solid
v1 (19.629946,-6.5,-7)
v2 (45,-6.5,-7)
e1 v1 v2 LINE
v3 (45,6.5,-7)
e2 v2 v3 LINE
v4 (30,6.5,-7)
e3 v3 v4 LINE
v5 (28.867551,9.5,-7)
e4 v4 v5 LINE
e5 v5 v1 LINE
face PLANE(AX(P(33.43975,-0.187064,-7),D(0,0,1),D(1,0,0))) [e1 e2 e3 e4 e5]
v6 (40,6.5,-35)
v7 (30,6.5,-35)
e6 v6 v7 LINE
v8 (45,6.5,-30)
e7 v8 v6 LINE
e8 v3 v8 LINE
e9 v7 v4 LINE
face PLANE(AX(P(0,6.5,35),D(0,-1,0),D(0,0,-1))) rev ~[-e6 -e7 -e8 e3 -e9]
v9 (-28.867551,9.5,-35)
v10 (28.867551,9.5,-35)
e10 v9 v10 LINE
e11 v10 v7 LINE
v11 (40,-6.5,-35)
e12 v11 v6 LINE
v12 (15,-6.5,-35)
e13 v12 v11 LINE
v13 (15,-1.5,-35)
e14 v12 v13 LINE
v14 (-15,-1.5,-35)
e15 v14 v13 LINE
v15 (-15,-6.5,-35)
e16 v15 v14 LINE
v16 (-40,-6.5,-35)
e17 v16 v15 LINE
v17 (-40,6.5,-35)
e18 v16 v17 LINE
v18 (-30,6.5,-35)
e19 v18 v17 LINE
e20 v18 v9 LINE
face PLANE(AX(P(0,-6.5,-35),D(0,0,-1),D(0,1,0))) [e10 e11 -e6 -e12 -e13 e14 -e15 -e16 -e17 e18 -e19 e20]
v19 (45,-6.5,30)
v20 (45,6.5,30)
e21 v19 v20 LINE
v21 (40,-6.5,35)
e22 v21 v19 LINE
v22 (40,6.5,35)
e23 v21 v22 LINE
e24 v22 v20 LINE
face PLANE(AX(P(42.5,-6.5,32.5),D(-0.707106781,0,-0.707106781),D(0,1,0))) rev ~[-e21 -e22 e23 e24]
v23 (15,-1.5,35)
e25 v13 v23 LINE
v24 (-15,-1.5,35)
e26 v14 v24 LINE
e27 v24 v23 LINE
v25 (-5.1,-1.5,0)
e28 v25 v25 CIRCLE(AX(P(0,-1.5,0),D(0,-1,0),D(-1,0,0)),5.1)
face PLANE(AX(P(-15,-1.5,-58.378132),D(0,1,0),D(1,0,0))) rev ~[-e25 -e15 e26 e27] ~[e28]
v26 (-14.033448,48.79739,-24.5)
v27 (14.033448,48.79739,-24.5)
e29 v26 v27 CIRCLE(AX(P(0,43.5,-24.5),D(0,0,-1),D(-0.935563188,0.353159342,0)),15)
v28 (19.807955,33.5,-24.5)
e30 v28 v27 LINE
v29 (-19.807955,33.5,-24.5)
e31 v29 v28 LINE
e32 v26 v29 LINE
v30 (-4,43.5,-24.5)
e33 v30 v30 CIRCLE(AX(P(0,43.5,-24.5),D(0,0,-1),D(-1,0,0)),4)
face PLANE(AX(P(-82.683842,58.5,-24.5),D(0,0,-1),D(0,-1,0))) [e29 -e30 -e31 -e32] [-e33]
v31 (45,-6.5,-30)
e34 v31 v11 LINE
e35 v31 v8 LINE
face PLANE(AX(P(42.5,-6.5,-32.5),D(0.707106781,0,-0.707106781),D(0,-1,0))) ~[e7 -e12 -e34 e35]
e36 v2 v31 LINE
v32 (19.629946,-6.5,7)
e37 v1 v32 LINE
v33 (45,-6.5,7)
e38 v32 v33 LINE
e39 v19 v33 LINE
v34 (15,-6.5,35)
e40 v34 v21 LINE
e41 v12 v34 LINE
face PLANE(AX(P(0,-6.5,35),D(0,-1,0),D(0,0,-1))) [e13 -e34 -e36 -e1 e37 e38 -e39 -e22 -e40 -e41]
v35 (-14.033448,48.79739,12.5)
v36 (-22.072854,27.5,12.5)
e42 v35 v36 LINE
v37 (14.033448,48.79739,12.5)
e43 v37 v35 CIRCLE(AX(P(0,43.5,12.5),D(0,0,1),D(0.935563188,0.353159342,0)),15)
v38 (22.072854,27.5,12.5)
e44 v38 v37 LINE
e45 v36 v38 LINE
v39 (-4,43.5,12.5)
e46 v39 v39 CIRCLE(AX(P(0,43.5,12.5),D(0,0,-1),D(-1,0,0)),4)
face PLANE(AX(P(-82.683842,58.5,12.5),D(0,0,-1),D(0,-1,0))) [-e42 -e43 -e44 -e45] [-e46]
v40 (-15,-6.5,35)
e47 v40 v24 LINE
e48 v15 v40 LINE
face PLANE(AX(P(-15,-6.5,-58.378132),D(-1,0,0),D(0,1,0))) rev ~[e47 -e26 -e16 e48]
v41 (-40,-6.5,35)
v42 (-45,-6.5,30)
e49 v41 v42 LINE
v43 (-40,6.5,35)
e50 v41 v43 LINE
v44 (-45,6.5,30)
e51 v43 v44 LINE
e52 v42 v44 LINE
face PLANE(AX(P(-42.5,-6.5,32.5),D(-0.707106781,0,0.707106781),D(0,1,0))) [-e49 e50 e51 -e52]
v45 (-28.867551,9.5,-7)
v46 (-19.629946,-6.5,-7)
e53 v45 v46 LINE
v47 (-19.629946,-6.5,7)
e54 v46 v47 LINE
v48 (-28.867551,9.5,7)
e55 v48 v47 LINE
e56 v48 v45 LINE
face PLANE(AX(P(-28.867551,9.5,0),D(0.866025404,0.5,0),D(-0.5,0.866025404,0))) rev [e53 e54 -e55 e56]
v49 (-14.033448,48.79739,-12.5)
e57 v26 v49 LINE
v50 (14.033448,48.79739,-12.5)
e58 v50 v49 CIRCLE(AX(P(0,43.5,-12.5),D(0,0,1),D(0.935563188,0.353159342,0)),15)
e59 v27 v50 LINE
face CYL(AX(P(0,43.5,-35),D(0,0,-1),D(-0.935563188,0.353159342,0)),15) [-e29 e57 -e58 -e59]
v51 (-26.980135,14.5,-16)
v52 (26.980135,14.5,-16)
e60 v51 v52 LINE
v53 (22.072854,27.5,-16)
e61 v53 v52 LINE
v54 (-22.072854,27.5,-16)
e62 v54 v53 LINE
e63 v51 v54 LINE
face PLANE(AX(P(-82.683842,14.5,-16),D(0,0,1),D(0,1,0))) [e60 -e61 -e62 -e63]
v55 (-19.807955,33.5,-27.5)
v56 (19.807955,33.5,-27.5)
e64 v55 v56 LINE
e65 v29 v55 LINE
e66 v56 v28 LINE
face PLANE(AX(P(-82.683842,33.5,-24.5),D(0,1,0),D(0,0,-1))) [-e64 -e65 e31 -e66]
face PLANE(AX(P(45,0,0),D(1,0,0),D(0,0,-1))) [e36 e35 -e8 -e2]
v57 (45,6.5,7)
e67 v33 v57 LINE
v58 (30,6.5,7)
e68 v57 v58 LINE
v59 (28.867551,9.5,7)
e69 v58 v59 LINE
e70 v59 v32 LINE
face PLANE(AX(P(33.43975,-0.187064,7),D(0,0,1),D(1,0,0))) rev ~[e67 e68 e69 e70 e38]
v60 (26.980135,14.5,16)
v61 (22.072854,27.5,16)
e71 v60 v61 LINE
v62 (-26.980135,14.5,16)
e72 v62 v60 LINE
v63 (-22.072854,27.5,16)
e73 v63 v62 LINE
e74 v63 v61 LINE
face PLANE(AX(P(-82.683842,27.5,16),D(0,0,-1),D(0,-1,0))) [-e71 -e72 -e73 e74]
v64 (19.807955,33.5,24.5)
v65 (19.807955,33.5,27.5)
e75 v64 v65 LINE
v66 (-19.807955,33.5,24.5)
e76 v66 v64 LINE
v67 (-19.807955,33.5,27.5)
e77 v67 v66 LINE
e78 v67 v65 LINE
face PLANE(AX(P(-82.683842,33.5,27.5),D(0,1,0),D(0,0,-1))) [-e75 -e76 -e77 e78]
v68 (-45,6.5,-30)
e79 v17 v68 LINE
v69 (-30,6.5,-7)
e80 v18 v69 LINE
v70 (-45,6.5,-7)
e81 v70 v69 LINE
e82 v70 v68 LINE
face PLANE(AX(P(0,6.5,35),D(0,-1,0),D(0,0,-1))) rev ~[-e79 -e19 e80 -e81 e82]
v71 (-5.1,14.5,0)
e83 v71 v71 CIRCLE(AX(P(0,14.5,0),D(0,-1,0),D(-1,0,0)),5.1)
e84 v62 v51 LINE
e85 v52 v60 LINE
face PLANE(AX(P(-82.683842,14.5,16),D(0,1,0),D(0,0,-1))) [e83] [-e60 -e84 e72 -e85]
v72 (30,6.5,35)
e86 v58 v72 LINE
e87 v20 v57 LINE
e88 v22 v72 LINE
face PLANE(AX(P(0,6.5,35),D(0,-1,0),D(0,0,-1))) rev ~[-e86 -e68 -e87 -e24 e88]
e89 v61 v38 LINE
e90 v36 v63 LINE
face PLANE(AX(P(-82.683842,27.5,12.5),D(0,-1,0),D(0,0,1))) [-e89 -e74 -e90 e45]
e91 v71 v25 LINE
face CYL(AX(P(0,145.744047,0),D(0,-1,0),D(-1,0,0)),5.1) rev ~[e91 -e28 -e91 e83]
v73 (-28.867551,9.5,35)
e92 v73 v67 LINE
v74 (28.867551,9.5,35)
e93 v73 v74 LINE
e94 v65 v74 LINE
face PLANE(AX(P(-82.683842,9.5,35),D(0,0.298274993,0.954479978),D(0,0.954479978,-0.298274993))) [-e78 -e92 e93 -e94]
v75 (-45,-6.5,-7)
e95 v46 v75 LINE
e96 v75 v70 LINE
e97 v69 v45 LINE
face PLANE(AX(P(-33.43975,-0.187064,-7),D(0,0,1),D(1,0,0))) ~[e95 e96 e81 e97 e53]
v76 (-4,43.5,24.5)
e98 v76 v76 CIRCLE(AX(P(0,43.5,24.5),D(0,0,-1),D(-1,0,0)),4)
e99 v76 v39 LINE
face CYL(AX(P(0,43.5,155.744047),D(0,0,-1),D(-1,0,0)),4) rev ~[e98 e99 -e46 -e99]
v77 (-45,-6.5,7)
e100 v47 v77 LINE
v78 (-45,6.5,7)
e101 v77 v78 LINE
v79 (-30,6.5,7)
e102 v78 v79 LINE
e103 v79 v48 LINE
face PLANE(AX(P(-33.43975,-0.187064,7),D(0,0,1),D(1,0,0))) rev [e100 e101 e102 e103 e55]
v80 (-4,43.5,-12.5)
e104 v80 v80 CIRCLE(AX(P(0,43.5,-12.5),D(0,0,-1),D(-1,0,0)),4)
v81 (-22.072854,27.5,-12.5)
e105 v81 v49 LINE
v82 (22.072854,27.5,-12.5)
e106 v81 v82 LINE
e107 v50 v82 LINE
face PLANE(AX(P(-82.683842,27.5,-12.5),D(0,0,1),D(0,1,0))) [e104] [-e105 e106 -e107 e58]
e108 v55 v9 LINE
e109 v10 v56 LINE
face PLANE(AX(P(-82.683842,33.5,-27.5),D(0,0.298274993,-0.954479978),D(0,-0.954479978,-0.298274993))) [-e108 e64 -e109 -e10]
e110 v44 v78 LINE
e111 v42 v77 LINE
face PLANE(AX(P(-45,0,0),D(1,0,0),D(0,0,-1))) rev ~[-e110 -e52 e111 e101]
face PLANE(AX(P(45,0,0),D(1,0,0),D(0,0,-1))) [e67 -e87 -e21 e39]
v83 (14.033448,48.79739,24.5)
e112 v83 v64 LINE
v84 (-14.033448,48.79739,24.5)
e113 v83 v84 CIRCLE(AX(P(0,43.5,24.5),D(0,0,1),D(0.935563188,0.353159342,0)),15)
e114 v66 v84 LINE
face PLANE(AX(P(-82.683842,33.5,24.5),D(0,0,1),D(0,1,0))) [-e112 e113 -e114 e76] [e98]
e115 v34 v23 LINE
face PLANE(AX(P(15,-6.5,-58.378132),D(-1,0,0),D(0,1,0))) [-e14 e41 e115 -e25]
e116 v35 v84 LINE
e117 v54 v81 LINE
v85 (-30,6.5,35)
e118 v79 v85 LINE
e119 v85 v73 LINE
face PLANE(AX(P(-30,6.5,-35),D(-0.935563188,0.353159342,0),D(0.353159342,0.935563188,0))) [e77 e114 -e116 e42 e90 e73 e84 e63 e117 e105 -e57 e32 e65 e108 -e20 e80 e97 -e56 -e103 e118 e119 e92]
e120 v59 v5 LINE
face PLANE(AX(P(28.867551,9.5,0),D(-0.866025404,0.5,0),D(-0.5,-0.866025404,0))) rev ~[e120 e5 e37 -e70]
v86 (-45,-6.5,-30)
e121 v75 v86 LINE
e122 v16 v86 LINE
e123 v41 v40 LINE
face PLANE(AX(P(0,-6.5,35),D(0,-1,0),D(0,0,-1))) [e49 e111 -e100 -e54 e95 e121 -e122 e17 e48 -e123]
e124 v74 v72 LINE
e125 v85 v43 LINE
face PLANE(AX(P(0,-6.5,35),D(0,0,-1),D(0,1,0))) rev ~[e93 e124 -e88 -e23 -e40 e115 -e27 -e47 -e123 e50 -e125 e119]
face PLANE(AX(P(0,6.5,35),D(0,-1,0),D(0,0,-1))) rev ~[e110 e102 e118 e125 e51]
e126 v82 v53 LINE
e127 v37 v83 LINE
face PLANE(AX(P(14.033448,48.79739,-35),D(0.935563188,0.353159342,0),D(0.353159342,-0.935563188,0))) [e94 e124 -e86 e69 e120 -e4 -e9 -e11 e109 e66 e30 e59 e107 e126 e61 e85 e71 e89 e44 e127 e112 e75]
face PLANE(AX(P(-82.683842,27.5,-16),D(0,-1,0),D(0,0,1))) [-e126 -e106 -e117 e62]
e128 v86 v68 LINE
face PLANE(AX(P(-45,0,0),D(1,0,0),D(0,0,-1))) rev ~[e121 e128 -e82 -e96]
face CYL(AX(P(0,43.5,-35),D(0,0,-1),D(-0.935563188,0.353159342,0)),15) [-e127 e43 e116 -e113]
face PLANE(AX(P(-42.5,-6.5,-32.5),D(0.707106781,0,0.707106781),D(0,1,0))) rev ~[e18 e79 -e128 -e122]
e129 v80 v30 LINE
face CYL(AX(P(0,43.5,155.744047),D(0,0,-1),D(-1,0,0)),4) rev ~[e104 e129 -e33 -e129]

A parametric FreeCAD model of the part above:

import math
import FreeCAD as App
import Part
import Sketcher
Q = App.Units.Quantity


def edges_at(feature, points):
    """Names of the edges that pass closest to the given points."""
    edges = feature.Shape.Edges
    near = lambda p: min(range(len(edges)), key=lambda i: edges[i].distToShape(Part.Vertex(*p))[0])
    return sorted({f"Edge{near(p) + 1}" for p in points})

doc = App.newDocument("Part")
params = doc.addObject("Spreadsheet::Sheet", "Params")
for row, (alias, value) in enumerate([
    ("sketch1_width", "13 mm"),
    ("sketch1_height", "70 mm"),
    ("pad1_length", "90 mm"),
    ("chamfer_size", "5 mm"),
    ("sketch2_width", "30 mm"),
    ("sketch2_height", "5 mm"),
    ("sketch3_radius", "15 mm"),
    ("sketch3_width", "60 mm"),
    ("pad2_length", "35 mm"),
    ("pad2_length2", "35 mm"),
    ("sketch4_width", "25 mm"),
    ("sketch4_width2", "31 mm"),
    ("sketch4_width3", "13 mm"),
    ("sketch4_height", "3 mm"),
    ("sketch4_height2", "12 mm"),
    ("sketch5_width", "15 mm"),
    ("sketch5_height", "13 mm"),
    ("pocket3_length", "14 mm"),
    ("sketch6_diameter", "8 mm"),
    ("hole_diameter", "8 mm"),
    ("sketch7_diameter", "10.2 mm"),
    ("hole2_diameter", "10.2 mm"),
], start=1):
    params.set(f"A{row}", alias)
    params.set(f"B{row}", "=" + value)
    params.setAlias(f"B{row}", alias)

body = doc.addObject("PartDesign::Body", "Body")

# Sketch on YZ plane
sketch1 = body.newObject("Sketcher::SketchObject", "Sketch")
sketch1.AttachmentSupport = (doc.getObject("YZ_Plane"), [""])
sketch1.MapMode = "FlatFace"
sketch1.addGeometry([
    Part.LineSegment(App.Vector(6.5, 35, 0), App.Vector(-6.5, 35, 0)),
    Part.LineSegment(App.Vector(-6.5, 35, 0), App.Vector(-6.5, -35, 0)),
    Part.LineSegment(App.Vector(-6.5, -35, 0), App.Vector(6.5, -35, 0)),
    Part.LineSegment(App.Vector(6.5, -35, 0), App.Vector(6.5, 35, 0)),
], False)
sketch1.addConstraint([
    Sketcher.Constraint("Coincident", 0, 2, 1, 1),
    Sketcher.Constraint("Coincident", 1, 2, 2, 1),
    Sketcher.Constraint("Coincident", 2, 2, 3, 1),
    Sketcher.Constraint("Coincident", 3, 2, 0, 1),
    Sketcher.Constraint("Horizontal", 0),
    Sketcher.Constraint("Vertical", 1),
    Sketcher.Constraint("Horizontal", 2),
    Sketcher.Constraint("Vertical", 3),
    Sketcher.Constraint("Symmetric", 0, 2, 2, 2, -1, 1),
    Sketcher.Constraint("DistanceX", 0, 2, 0, 1, Q("13 mm")),
    Sketcher.Constraint("DistanceY", 1, 2, 1, 1, Q("70 mm")),
])
sketch1.setExpression("Constraints[9]", "Params.sketch1_width")
sketch1.setExpression("Constraints[10]", "Params.sketch1_height")
pad1 = body.newObject("PartDesign::Pad", "Pad")
pad1.Profile = sketch1
pad1.setExpression("Length", "Params.pad1_length")
pad1.Midplane = True
doc.recompute()

chamfer = body.newObject("PartDesign::Chamfer", "Chamfer")
chamfer.Base = (pad1, edges_at(pad1, [
    (45, 0, -35),
    (45, 0, 35),
    (-45, 0, -35),
    (-45, 0, 35),
]))
chamfer.setExpression("Size", "Params.chamfer_size")

# Sketch on XY plane
sketch2 = body.newObject("Sketcher::SketchObject", "Sketch001")
sketch2.AttachmentSupport = (doc.getObject("XY_Plane"), [""])
sketch2.MapMode = "FlatFace"
sketch2.addGeometry([
    Part.LineSegment(App.Vector(-15, -1.5, 0), App.Vector(-15, -6.5, 0)),
    Part.LineSegment(App.Vector(-15, -6.5, 0), App.Vector(15, -6.5, 0)),
    Part.LineSegment(App.Vector(15, -6.5, 0), App.Vector(15, -1.5, 0)),
    Part.LineSegment(App.Vector(15, -1.5, 0), App.Vector(-15, -1.5, 0)),
], False)
sketch2.addConstraint([
    Sketcher.Constraint("Coincident", 0, 2, 1, 1),
    Sketcher.Constraint("Coincident", 1, 2, 2, 1),
    Sketcher.Constraint("Coincident", 2, 2, 3, 1),
    Sketcher.Constraint("Coincident", 3, 2, 0, 1),
    Sketcher.Constraint("Vertical", 0),
    Sketcher.Constraint("Horizontal", 1),
    Sketcher.Constraint("Vertical", 2),
    Sketcher.Constraint("Horizontal", 3),
    Sketcher.Constraint("DistanceX", 1, 1, 1, 2, Q("30 mm")),
    Sketcher.Constraint("DistanceY", 0, 2, 0, 1, Q("5 mm")),
    Sketcher.Constraint("DistanceX", 0, 2, -1, 1, Q("15 mm")),
    Sketcher.Constraint("DistanceY", 0, 2, -1, 1, Q("6.5 mm")),
])
sketch2.setExpression("Constraints[8]", "Params.sketch2_width")
sketch2.setExpression("Constraints[9]", "Params.sketch2_height")
pocket1 = body.newObject("PartDesign::Pocket", "Pocket")
pocket1.Profile = sketch2
pocket1.Type = "ThroughAll"
pocket1.Midplane = True

# Sketch on XY plane
sketch3 = body.newObject("Sketcher::SketchObject", "Sketch002")
sketch3.AttachmentSupport = (doc.getObject("XY_Plane"), [""])
sketch3.MapMode = "FlatFace"
sketch3.addGeometry([
    Part.LineSegment(App.Vector(-14.033448, 48.79739, 0), App.Vector(-30, 6.5, 0)),
    Part.LineSegment(App.Vector(-30, 6.5, 0), App.Vector(30, 6.5, 0)),
    Part.LineSegment(App.Vector(30, 6.5, 0), App.Vector(14.033448, 48.79739, 0)),
    Part.ArcOfCircle(Part.Circle(App.Vector(0, 43.5, 0), App.Vector(0, 0, 1), 15), math.radians(20.680677), math.radians(159.319323)),
], False)
sketch3.addConstraint([
    Sketcher.Constraint("Coincident", 0, 2, 1, 1),
    Sketcher.Constraint("Coincident", 1, 2, 2, 1),
    Sketcher.Constraint("Tangent", 2, 2, 3, 1),
    Sketcher.Constraint("Tangent", 3, 2, 0, 1),
    Sketcher.Constraint("Horizontal", 1),
    Sketcher.Constraint("Symmetric", 2, 2, 3, 2, -2),
    Sketcher.Constraint("Radius", 3, Q("15 mm")),
    Sketcher.Constraint("DistanceX", 1, 1, 1, 2, Q("60 mm")),
    Sketcher.Constraint("DistanceY", 0, 2, 3, 3, Q("37 mm")),
    Sketcher.Constraint("DistanceY", -1, 1, 3, 3, Q("43.5 mm")),
])
sketch3.setExpression("Constraints[6]", "Params.sketch3_radius")
sketch3.setExpression("Constraints[7]", "Params.sketch3_width")
pad2 = body.newObject("PartDesign::Pad", "Pad001")
pad2.Profile = sketch3
pad2.Type = "TwoLengths"
pad2.setExpression("Length", "Params.pad2_length")
pad2.setExpression("Length2", "Params.pad2_length2")

# Sketch on YZ plane
sketch4 = body.newObject("Sketcher::SketchObject", "Sketch003")
sketch4.AttachmentSupport = (doc.getObject("YZ_Plane"), [""])
sketch4.MapMode = "FlatFace"
sketch4.addGeometry([
    Part.LineSegment(App.Vector(-163.157581, 88.955494, 0), App.Vector(9.5, 35, 0)),  # 0
    Part.LineSegment(App.Vector(9.5, 35, 0), App.Vector(33.5, 27.5, 0)),  # 1
    Part.LineSegment(App.Vector(33.5, 27.5, 0), App.Vector(33.5, 24.5, 0)),  # 2
    Part.LineSegment(App.Vector(33.5, 24.5, 0), App.Vector(58.5, 24.5, 0)),  # 3
    Part.LineSegment(App.Vector(58.5, 24.5, 0), App.Vector(58.5, 12.5, 0)),  # 4
    Part.LineSegment(App.Vector(58.5, 12.5, 0), App.Vector(27.5, 12.5, 0)),  # 5
    Part.LineSegment(App.Vector(27.5, 12.5, 0), App.Vector(27.5, 16, 0)),  # 6
    Part.LineSegment(App.Vector(27.5, 16, 0), App.Vector(14.5, 16, 0)),  # 7
    Part.LineSegment(App.Vector(14.5, 16, 0), App.Vector(14.5, -16, 0)),  # 8
    Part.LineSegment(App.Vector(14.5, -16, 0), App.Vector(27.5, -16, 0)),  # 9
    Part.LineSegment(App.Vector(27.5, -16, 0), App.Vector(27.5, -12.5, 0)),  # 10
    Part.LineSegment(App.Vector(27.5, -12.5, 0), App.Vector(58.5, -12.5, 0)),  # 11
    Part.LineSegment(App.Vector(58.5, -12.5, 0), App.Vector(58.5, -24.5, 0)),  # 12
    Part.LineSegment(App.Vector(58.5, -24.5, 0), App.Vector(33.5, -24.5, 0)),  # 13
    Part.LineSegment(App.Vector(33.5, -24.5, 0), App.Vector(33.5, -27.5, 0)),  # 14
    Part.LineSegment(App.Vector(33.5, -27.5, 0), App.Vector(9.5, -35, 0)),  # 15
    Part.LineSegment(App.Vector(9.5, -35, 0), App.Vector(-163.157581, -88.955494, 0)),  # 16
    Part.LineSegment(App.Vector(-163.157581, -88.955494, 0), App.Vector(198.625976, -88.955494, 0)),  # 17
    Part.LineSegment(App.Vector(198.625976, -88.955494, 0), App.Vector(198.625976, 88.955494, 0)),  # 18
    Part.LineSegment(App.Vector(198.625976, 88.955494, 0), App.Vector(-163.157581, 88.955494, 0)),  # 19
], False)
sketch4.addConstraint([
    Sketcher.Constraint("Coincident", 0, 2, 1, 1),
    Sketcher.Constraint("Coincident", 1, 2, 2, 1),
    Sketcher.Constraint("Coincident", 2, 2, 3, 1),
    Sketcher.Constraint("Coincident", 3, 2, 4, 1),
    Sketcher.Constraint("Coincident", 4, 2, 5, 1),
    Sketcher.Constraint("Coincident", 5, 2, 6, 1),
    Sketcher.Constraint("Coincident", 6, 2, 7, 1),
    Sketcher.Constraint("Coincident", 7, 2, 8, 1),
    Sketcher.Constraint("Coincident", 8, 2, 9, 1),
    Sketcher.Constraint("Coincident", 9, 2, 10, 1),
    Sketcher.Constraint("Coincident", 10, 2, 11, 1),
    Sketcher.Constraint("Coincident", 11, 2, 12, 1),
    Sketcher.Constraint("Coincident", 12, 2, 13, 1),
    Sketcher.Constraint("Coincident", 13, 2, 14, 1),
    Sketcher.Constraint("Coincident", 14, 2, 15, 1),
    Sketcher.Constraint("Coincident", 15, 2, 16, 1),
    Sketcher.Constraint("Coincident", 16, 2, 17, 1),
    Sketcher.Constraint("Coincident", 17, 2, 18, 1),
    Sketcher.Constraint("Coincident", 18, 2, 19, 1),
    Sketcher.Constraint("Coincident", 19, 2, 0, 1),
    Sketcher.Constraint("Vertical", 2),
    Sketcher.Constraint("Horizontal", 3),
    Sketcher.Constraint("Vertical", 4),
    Sketcher.Constraint("Horizontal", 5),
    Sketcher.Constraint("Vertical", 6),
    Sketcher.Constraint("Horizontal", 7),
    Sketcher.Constraint("Vertical", 8),
    Sketcher.Constraint("Horizontal", 9),
    Sketcher.Constraint("Vertical", 10),
    Sketcher.Constraint("Horizontal", 11),
    Sketcher.Constraint("Vertical", 12),
    Sketcher.Constraint("Horizontal", 13),
    Sketcher.Constraint("Vertical", 14),
    Sketcher.Constraint("Horizontal", 17),
    Sketcher.Constraint("Vertical", 18),
    Sketcher.Constraint("Horizontal", 19),
    Sketcher.Constraint("Symmetric", 6, 2, 9, 2, -1),
    Sketcher.Constraint("Symmetric", 4, 2, 11, 2, -1),
    Sketcher.Constraint("Symmetric", 2, 2, 13, 2, -1),
    Sketcher.Constraint("Symmetric", 0, 2, 15, 2, -1),
    Sketcher.Constraint("Symmetric", 16, 2, 19, 2, -1),
    Sketcher.Constraint("Parallel", 0, 1),
    Sketcher.Constraint("Parallel", 15, 16),
    Sketcher.Constraint("DistanceX", 3, 1, 3, 2, Q("25 mm")),
    Sketcher.Constraint("DistanceX", 5, 2, 5, 1, Q("31 mm")),
    Sketcher.Constraint("DistanceX", 7, 2, 7, 1, Q("13 mm")),
    Sketcher.Constraint("DistanceY", 2, 2, 2, 1, Q("3 mm")),
    Sketcher.Constraint("DistanceY", 4, 2, 4, 1, Q("12 mm")),
    Sketcher.Constraint("DistanceY", 8, 2, 8, 1, Q("32 mm")),
    Sketcher.Constraint("DistanceY", 6, 1, 6, 2, Q("3.5 mm")),
    Sketcher.Constraint("DistanceY", -1, 1, 0, 2, Q("35 mm")),
    Sketcher.Constraint("DistanceX", 0, 2, 1, 2, Q("24 mm")),
    Sketcher.Constraint("DistanceX", -1, 1, 0, 2, Q("9.5 mm")),
    Sketcher.Constraint("DistanceY", 18, 1, 18, 2, Q("177.910988 mm")),
    Sketcher.Constraint("DistanceX", 17, 1, 17, 2, Q("361.783557 mm")),
])
sketch4.setExpression("Constraints[43]", "Params.sketch4_width")
sketch4.setExpression("Constraints[44]", "Params.sketch4_width2")
sketch4.setExpression("Constraints[45]", "Params.sketch4_width3")
sketch4.setExpression("Constraints[46]", "Params.sketch4_height")
sketch4.setExpression("Constraints[47]", "Params.sketch4_height2")
pocket2 = body.newObject("PartDesign::Pocket", "Pocket001")
pocket2.Profile = sketch4
pocket2.Type = "ThroughAll"
pocket2.Midplane = True

# Sketch on XY plane
sketch5 = body.newObject("Sketcher::SketchObject", "Sketch004")
sketch5.AttachmentSupport = (doc.getObject("XY_Plane"), [""])
sketch5.MapMode = "FlatFace"
sketch5.addGeometry([
    Part.LineSegment(App.Vector(28.867551, 9.5, 0), App.Vector(19.629946, -6.5, 0)),  # 0
    Part.LineSegment(App.Vector(19.629946, -6.5, 0), App.Vector(45, -6.5, 0)),  # 1
    Part.LineSegment(App.Vector(45, -6.5, 0), App.Vector(45, 6.5, 0)),  # 2
    Part.LineSegment(App.Vector(45, 6.5, 0), App.Vector(30, 6.5, 0)),  # 3
    Part.LineSegment(App.Vector(30, 6.5, 0), App.Vector(28.867551, 9.5, 0)),  # 4
], False)
sketch5.addConstraint([
    Sketcher.Constraint("Coincident", 0, 2, 1, 1),
    Sketcher.Constraint("Coincident", 1, 2, 2, 1),
    Sketcher.Constraint("Coincident", 2, 2, 3, 1),
    Sketcher.Constraint("Coincident", 3, 2, 4, 1),
    Sketcher.Constraint("Coincident", 4, 2, 0, 1),
    Sketcher.Constraint("Horizontal", 1),
    Sketcher.Constraint("Vertical", 2),
    Sketcher.Constraint("Horizontal", 3),
    Sketcher.Constraint("DistanceX", 3, 2, 3, 1, Q("15 mm")),
    Sketcher.Constraint("DistanceY", 2, 1, 2, 2, Q("13 mm")),
    Sketcher.Constraint("Angle", 0, Q("-120 deg")),
    Sketcher.Constraint("DistanceX", -1, 1, 1, 2, Q("45 mm")),
    Sketcher.Constraint("DistanceY", 3, 2, 4, 2, Q("3 mm")),
    Sketcher.Constraint("DistanceY", 0, 2, -1, 1, Q("6.5 mm")),
    Sketcher.Constraint("DistanceX", 1, 1, 1, 2, Q("25.370054 mm")),
])
sketch5.setExpression("Constraints[8]", "Params.sketch5_width")
sketch5.setExpression("Constraints[9]", "Params.sketch5_height")
pocket3 = body.newObject("PartDesign::Pocket", "Pocket002")
pocket3.Profile = sketch5
pocket3.setExpression("Length", "Params.pocket3_length")
pocket3.Midplane = True
doc.recompute()

mirrored = body.newObject("PartDesign::Mirrored", "Mirrored")
mirrored.Originals = [pocket3]
mirrored.MirrorPlane = (doc.getObject("YZ_Plane"), [""])
body.Tip = mirrored

# Sketch on XY plane
sketch6 = body.newObject("Sketcher::SketchObject", "Sketch005")
sketch6.AttachmentSupport = (doc.getObject("XY_Plane"), [""])
sketch6.MapMode = "FlatFace"
sketch6.AttachmentOffset = App.Placement(App.Vector(0, 0, 24.5), App.Rotation())
sketch6.addGeometry(Part.Circle(App.Vector(0, 43.5, 0), App.Vector(0, 0, 1), 4), False)
sketch6.addConstraint([
    Sketcher.Constraint("PointOnObject", 0, 3, -2),
    Sketcher.Constraint("Diameter", 0, Q("8 mm")),
    Sketcher.Constraint("DistanceY", -1, 1, 0, 3, Q("43.5 mm")),
])
sketch6.setExpression("Constraints[1]", "Params.sketch6_diameter")
doc.recompute()
hole = body.newObject("PartDesign::Hole", "Hole")
hole.Profile = sketch6
hole.ThreadType = "None"
hole.setExpression("Diameter", "Params.hole_diameter")
hole.DepthType = "ThroughAll"

# Sketch on XZ plane
sketch7 = body.newObject("Sketcher::SketchObject", "Sketch006")
sketch7.AttachmentSupport = (doc.getObject("XZ_Plane"), [""])
sketch7.MapMode = "FlatFace"
sketch7.AttachmentOffset = App.Placement(App.Vector(0, 0, -14.5), App.Rotation())
sketch7.addGeometry(Part.Circle(App.Vector(0, 0, 0), App.Vector(0, 0, 1), 5.1), False)
sketch7.addConstraint([
    Sketcher.Constraint("Coincident", 0, 3, -1, 1),
    Sketcher.Constraint("Diameter", 0, Q("10.2 mm")),
])
sketch7.setExpression("Constraints[1]", "Params.sketch7_diameter")
doc.recompute()
hole2 = body.newObject("PartDesign::Hole", "Hole001")
hole2.Profile = sketch7
hole2.ThreadType = "None"
hole2.setExpression("Diameter", "Params.hole2_diameter")
hole2.DepthType = "ThroughAll"
hole2.Reversed = True

doc.recompute()
